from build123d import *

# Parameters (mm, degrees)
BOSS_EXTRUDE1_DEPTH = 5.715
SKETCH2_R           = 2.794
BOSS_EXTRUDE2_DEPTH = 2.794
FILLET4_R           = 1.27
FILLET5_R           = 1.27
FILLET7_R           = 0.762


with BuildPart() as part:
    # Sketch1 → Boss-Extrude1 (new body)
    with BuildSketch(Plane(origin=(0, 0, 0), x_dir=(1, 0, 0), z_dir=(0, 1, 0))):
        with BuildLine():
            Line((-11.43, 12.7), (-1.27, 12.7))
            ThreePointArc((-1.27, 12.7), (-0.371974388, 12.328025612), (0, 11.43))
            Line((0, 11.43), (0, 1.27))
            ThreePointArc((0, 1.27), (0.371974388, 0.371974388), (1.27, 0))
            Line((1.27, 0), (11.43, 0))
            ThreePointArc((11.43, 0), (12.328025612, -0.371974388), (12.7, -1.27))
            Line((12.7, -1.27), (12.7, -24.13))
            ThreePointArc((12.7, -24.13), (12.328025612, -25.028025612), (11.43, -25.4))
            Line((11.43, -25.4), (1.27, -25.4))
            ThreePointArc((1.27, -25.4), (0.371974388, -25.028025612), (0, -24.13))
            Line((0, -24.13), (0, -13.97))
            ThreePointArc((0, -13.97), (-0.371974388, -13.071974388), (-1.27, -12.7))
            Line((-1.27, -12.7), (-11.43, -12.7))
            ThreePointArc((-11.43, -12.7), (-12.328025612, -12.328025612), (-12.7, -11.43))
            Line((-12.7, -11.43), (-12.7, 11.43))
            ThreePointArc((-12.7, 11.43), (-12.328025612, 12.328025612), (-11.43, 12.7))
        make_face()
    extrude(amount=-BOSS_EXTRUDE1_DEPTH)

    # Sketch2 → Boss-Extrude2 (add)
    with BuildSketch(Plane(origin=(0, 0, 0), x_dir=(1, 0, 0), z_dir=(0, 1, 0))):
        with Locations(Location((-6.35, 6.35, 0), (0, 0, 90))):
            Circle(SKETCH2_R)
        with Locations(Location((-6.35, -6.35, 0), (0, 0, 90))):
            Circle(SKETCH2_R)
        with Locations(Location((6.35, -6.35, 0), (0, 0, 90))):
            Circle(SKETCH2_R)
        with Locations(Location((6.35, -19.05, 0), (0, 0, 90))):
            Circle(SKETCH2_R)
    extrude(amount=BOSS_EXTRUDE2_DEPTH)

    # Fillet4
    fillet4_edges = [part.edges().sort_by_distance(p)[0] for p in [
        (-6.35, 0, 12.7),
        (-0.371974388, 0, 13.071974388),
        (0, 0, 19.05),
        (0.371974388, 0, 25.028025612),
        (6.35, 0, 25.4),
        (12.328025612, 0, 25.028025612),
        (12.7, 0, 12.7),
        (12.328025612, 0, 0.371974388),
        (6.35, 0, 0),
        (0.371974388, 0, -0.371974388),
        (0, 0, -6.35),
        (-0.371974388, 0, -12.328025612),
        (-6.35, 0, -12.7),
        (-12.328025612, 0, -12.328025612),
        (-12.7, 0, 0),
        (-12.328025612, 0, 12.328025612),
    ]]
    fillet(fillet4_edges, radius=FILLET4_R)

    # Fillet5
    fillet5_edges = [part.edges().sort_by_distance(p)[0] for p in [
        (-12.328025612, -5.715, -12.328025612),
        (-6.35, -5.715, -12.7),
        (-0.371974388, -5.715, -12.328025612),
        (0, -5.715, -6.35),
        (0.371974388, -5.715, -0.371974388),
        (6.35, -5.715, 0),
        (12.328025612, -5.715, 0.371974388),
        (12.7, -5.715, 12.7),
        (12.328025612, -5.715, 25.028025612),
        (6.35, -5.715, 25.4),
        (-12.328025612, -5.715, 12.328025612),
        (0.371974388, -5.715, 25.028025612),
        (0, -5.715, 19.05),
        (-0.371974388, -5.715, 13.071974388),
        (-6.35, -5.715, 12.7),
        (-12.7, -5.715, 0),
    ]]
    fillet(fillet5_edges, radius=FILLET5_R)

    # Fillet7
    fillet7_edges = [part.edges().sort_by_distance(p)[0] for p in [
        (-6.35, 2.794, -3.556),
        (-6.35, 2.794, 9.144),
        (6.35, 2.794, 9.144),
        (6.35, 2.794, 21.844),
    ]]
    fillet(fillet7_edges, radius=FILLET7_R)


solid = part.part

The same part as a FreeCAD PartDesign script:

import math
import FreeCAD as App
import Part
import Sketcher
Q = App.Units.Quantity


def edges_at(feature, points):
    """Names of the edges that pass closest to the given points."""
    edges = feature.Shape.Edges
    near = lambda p: min(range(len(edges)), key=lambda i: edges[i].distToShape(Part.Vertex(*p))[0])
    return sorted({f"Edge{near(p) + 1}" for p in points})

doc = App.newDocument("Part")
body = doc.addObject("PartDesign::Body", "Body")

sketch1 = body.newObject("Sketcher::SketchObject", "Sketch")
sketch1.AttachmentSupport = (doc.getObject("XZ_Plane"), [""])
sketch1.MapMode = "FlatFace"
sketch1.addGeometry(Part.LineSegment(App.Vector(-1.27, -12.7, 0), App.Vector(-11.43, -12.7, 0)), False)
sketch1.addGeometry(Part.ArcOfCircle(Part.Circle(App.Vector(-11.43, -11.43, 0), App.Vector(0, 0, 1), 1.27), math.radians(180), math.radians(270)), False)
sketch1.addGeometry(Part.LineSegment(App.Vector(-12.7, -11.43, 0), App.Vector(-12.7, 11.43, 0)), False)
sketch1.addGeometry(Part.ArcOfCircle(Part.Circle(App.Vector(-11.43, 11.43, 0), App.Vector(0, 0, 1), 1.27), math.radians(90), math.radians(180)), False)
sketch1.addGeometry(Part.LineSegment(App.Vector(-11.43, 12.7, 0), App.Vector(-1.27, 12.7, 0)), False)
sketch1.addGeometry(Part.ArcOfCircle(Part.Circle(App.Vector(-1.27, 13.97, 0), App.Vector(0, 0, 1), 1.27), math.radians(-90), math.radians(0)), False)
sketch1.addGeometry(Part.LineSegment(App.Vector(0, 13.97, 0), App.Vector(0, 24.13, 0)), False)
sketch1.addGeometry(Part.ArcOfCircle(Part.Circle(App.Vector(1.27, 24.13, 0), App.Vector(0, 0, 1), 1.27), math.radians(90), math.radians(180)), False)
sketch1.addGeometry(Part.LineSegment(App.Vector(1.27, 25.4, 0), App.Vector(11.43, 25.4, 0)), False)
sketch1.addGeometry(Part.ArcOfCircle(Part.Circle(App.Vector(11.43, 24.13, 0), App.Vector(0, 0, 1), 1.27), math.radians(0), math.radians(90)), False)
sketch1.addGeometry(Part.LineSegment(App.Vector(12.7, 24.13, 0), App.Vector(12.7, 1.27, 0)), False)
sketch1.addGeometry(Part.ArcOfCircle(Part.Circle(App.Vector(11.43, 1.27, 0), App.Vector(0, 0, 1), 1.27), math.radians(-90), math.radians(0)), False)
sketch1.addGeometry(Part.LineSegment(App.Vector(11.43, 0, 0), App.Vector(1.27, 0, 0)), False)
sketch1.addGeometry(Part.ArcOfCircle(Part.Circle(App.Vector(1.27, -1.27, 0), App.Vector(0, 0, 1), 1.27), math.radians(90), math.radians(180)), False)
sketch1.addGeometry(Part.LineSegment(App.Vector(0, -1.27, 0), App.Vector(0, -11.43, 0)), False)
sketch1.addGeometry(Part.ArcOfCircle(Part.Circle(App.Vector(-1.27, -11.43, 0), App.Vector(0, 0, 1), 1.27), math.radians(-90), math.radians(0)), False)
sketch1.addConstraint(Sketcher.Constraint("Tangent", 0, 2, 1, 2))
sketch1.addConstraint(Sketcher.Constraint("Tangent", 1, 1, 2, 1))
sketch1.addConstraint(Sketcher.Constraint("Tangent", 2, 2, 3, 2))
sketch1.addConstraint(Sketcher.Constraint("Tangent", 3, 1, 4, 1))
sketch1.addConstraint(Sketcher.Constraint("Tangent", 4, 2, 5, 1))
sketch1.addConstraint(Sketcher.Constraint("Tangent", 5, 2, 6, 1))
sketch1.addConstraint(Sketcher.Constraint("Tangent", 6, 2, 7, 2))
sketch1.addConstraint(Sketcher.Constraint("Tangent", 7, 1, 8, 1))
sketch1.addConstraint(Sketcher.Constraint("Tangent", 8, 2, 9, 2))
sketch1.addConstraint(Sketcher.Constraint("Tangent", 9, 1, 10, 1))
sketch1.addConstraint(Sketcher.Constraint("Tangent", 10, 2, 11, 2))
sketch1.addConstraint(Sketcher.Constraint("Tangent", 11, 1, 12, 1))
sketch1.addConstraint(Sketcher.Constraint("Tangent", 12, 2, 13, 1))
sketch1.addConstraint(Sketcher.Constraint("Tangent", 13, 2, 14, 1))
sketch1.addConstraint(Sketcher.Constraint("Tangent", 14, 2, 15, 2))
sketch1.addConstraint(Sketcher.Constraint("Tangent", 15, 1, 0, 1))
sketch1.addConstraint(Sketcher.Constraint("Horizontal", 0))
sketch1.addConstraint(Sketcher.Constraint("Vertical", 2))
sketch1.addConstraint(Sketcher.Constraint("Horizontal", 4))
sketch1.addConstraint(Sketcher.Constraint("Vertical", 6))
sketch1.addConstraint(Sketcher.Constraint("Horizontal", 8))
sketch1.addConstraint(Sketcher.Constraint("Vertical", 10))
sketch1.addConstraint(Sketcher.Constraint("Horizontal", 12))
sketch1.addConstraint(Sketcher.Constraint("Vertical", 14))
sketch1.addConstraint(Sketcher.Constraint("Equal", 1, 3))
sketch1.addConstraint(Sketcher.Constraint("Equal", 3, 5))
sketch1.addConstraint(Sketcher.Constraint("Equal", 5, 7))
sketch1.addConstraint(Sketcher.Constraint("Equal", 7, 9))
sketch1.addConstraint(Sketcher.Constraint("Equal", 9, 11))
sketch1.addConstraint(Sketcher.Constraint("Equal", 11, 13))
sketch1.addConstraint(Sketcher.Constraint("Equal", 13, 15))
sketch1.addConstraint(Sketcher.Constraint("Symmetric", 4, 2, 15, 1, -1))
sketch1.addConstraint(Sketcher.Constraint("PointOnObject", 5, 2, -2))
sketch1.addConstraint(Sketcher.Constraint("PointOnObject", 11, 1, -1))
sketch1.addConstraint(Sketcher.Constraint("Equal", 4, 8))
sketch1.addConstraint(Sketcher.Constraint("Equal", 12, 6))
sketch1.addConstraint(Sketcher.Constraint("Equal", 2, 10))
sketch1.addConstraint(Sketcher.Constraint("Radius", 1, Q("0.05 in")))
sketch1.addConstraint(Sketcher.Constraint("DistanceX", 0, 2, 0, 1, Q("0.4 in")))
pad1 = body.newObject("PartDesign::Pad", "Pad")
pad1.Profile = sketch1
pad1.Length = Q("0.225 in")

sketch2 = body.newObject("Sketcher::SketchObject", "Sketch001")
sketch2.AttachmentSupport = (doc.getObject("XZ_Plane"), [""])
sketch2.MapMode = "FlatFace"
sketch2.addGeometry(Part.Circle(App.Vector(-6.35, -6.35, 0), App.Vector(0, 0, 1), 2.794), False)
sketch2.addGeometry(Part.Circle(App.Vector(-6.35, 6.35, 0), App.Vector(0, 0, 1), 2.794), False)
sketch2.addGeometry(Part.Circle(App.Vector(6.35, 6.35, 0), App.Vector(0, 0, 1), 2.794), False)
sketch2.addGeometry(Part.Circle(App.Vector(6.35, 19.05, 0), App.Vector(0, 0, 1), 2.794), False)
sketch2.addConstraint(Sketcher.Constraint("Equal", 0, 1))
sketch2.addConstraint(Sketcher.Constraint("Equal", 1, 2))
sketch2.addConstraint(Sketcher.Constraint("Equal", 2, 3))
sketch2.addConstraint(Sketcher.Constraint("Symmetric", 0, 3, 2, 3, -1, 1))
sketch2.addConstraint(Sketcher.Constraint("Symmetric", 1, 3, 2, 3, -2))
sketch2.addConstraint(Sketcher.Constraint("Vertical", 2, 3, 3, 3))
sketch2.addConstraint(Sketcher.Constraint("Diameter", 0, Q("0.22 in")))
sketch2.addConstraint(Sketcher.Constraint("DistanceY", 0, 3, 3, 3, Q("1 in")))
sketch2.addConstraint(Sketcher.Constraint("DistanceY", 0, 3, 1, 3, Q("0.5 in")))
sketch2.addConstraint(Sketcher.Constraint("DistanceX", 1, 3, 2, 3, Q("0.5 in")))
pad2 = body.newObject("PartDesign::Pad", "Pad001")
pad2.Profile = sketch2
pad2.Length = Q("0.11 in")
pad2.Reversed = True
doc.recompute()

fillet = body.newObject("PartDesign::Fillet", "Fillet")
fillet.Base = (pad2, edges_at(pad2, [
    (-6.35, 0, 12.7),
    (-0.372, 0, 13.072),
    (0, 0, 19.05),
    (0.372, 0, 25.028),
    (6.35, 0, 25.4),
    (12.328, 0, 25.028),
    (12.7, 0, 12.7),
    (12.328, 0, 0.372),
    (6.35, 0, 0),
    (0.372, 0, -0.372),
    (0, 0, -6.35),
    (-0.372, 0, -12.328),
    (-6.35, 0, -12.7),
    (-12.328, 0, -12.328),
    (-12.7, 0, 0),
    (-12.328, 0, 12.328),
]))
fillet.Radius = Q("0.05 in")
doc.recompute()

fillet2 = body.newObject("PartDesign::Fillet", "Fillet001")
fillet2.Base = (fillet, edges_at(fillet, [
    (-12.328, -5.715, -12.328),
    (-6.35, -5.715, -12.7),
    (-0.372, -5.715, -12.328),
    (0, -5.715, -6.35),
    (0.372, -5.715, -0.372),
    (6.35, -5.715, 0),
    (12.328, -5.715, 0.372),
    (12.7, -5.715, 12.7),
    (12.328, -5.715, 25.028),
    (6.35, -5.715, 25.4),
    (-12.328, -5.715, 12.328),
    (0.372, -5.715, 25.028),
    (0, -5.715, 19.05),
    (-0.372, -5.715, 13.072),
    (-6.35, -5.715, 12.7),
    (-12.7, -5.715, 0),
]))
fillet2.Radius = Q("0.05 in")
doc.recompute()

fillet3 = body.newObject("PartDesign::Fillet", "Fillet002")
fillet3.Base = (fillet2, edges_at(fillet2, [
    (-6.35, 2.794, -3.556),
    (-6.35, 2.794, 9.144),
    (6.35, 2.794, 9.144),
    (6.35, 2.794, 21.844),
]))
fillet3.Radius = Q("0.03 in")

doc.recompute()
